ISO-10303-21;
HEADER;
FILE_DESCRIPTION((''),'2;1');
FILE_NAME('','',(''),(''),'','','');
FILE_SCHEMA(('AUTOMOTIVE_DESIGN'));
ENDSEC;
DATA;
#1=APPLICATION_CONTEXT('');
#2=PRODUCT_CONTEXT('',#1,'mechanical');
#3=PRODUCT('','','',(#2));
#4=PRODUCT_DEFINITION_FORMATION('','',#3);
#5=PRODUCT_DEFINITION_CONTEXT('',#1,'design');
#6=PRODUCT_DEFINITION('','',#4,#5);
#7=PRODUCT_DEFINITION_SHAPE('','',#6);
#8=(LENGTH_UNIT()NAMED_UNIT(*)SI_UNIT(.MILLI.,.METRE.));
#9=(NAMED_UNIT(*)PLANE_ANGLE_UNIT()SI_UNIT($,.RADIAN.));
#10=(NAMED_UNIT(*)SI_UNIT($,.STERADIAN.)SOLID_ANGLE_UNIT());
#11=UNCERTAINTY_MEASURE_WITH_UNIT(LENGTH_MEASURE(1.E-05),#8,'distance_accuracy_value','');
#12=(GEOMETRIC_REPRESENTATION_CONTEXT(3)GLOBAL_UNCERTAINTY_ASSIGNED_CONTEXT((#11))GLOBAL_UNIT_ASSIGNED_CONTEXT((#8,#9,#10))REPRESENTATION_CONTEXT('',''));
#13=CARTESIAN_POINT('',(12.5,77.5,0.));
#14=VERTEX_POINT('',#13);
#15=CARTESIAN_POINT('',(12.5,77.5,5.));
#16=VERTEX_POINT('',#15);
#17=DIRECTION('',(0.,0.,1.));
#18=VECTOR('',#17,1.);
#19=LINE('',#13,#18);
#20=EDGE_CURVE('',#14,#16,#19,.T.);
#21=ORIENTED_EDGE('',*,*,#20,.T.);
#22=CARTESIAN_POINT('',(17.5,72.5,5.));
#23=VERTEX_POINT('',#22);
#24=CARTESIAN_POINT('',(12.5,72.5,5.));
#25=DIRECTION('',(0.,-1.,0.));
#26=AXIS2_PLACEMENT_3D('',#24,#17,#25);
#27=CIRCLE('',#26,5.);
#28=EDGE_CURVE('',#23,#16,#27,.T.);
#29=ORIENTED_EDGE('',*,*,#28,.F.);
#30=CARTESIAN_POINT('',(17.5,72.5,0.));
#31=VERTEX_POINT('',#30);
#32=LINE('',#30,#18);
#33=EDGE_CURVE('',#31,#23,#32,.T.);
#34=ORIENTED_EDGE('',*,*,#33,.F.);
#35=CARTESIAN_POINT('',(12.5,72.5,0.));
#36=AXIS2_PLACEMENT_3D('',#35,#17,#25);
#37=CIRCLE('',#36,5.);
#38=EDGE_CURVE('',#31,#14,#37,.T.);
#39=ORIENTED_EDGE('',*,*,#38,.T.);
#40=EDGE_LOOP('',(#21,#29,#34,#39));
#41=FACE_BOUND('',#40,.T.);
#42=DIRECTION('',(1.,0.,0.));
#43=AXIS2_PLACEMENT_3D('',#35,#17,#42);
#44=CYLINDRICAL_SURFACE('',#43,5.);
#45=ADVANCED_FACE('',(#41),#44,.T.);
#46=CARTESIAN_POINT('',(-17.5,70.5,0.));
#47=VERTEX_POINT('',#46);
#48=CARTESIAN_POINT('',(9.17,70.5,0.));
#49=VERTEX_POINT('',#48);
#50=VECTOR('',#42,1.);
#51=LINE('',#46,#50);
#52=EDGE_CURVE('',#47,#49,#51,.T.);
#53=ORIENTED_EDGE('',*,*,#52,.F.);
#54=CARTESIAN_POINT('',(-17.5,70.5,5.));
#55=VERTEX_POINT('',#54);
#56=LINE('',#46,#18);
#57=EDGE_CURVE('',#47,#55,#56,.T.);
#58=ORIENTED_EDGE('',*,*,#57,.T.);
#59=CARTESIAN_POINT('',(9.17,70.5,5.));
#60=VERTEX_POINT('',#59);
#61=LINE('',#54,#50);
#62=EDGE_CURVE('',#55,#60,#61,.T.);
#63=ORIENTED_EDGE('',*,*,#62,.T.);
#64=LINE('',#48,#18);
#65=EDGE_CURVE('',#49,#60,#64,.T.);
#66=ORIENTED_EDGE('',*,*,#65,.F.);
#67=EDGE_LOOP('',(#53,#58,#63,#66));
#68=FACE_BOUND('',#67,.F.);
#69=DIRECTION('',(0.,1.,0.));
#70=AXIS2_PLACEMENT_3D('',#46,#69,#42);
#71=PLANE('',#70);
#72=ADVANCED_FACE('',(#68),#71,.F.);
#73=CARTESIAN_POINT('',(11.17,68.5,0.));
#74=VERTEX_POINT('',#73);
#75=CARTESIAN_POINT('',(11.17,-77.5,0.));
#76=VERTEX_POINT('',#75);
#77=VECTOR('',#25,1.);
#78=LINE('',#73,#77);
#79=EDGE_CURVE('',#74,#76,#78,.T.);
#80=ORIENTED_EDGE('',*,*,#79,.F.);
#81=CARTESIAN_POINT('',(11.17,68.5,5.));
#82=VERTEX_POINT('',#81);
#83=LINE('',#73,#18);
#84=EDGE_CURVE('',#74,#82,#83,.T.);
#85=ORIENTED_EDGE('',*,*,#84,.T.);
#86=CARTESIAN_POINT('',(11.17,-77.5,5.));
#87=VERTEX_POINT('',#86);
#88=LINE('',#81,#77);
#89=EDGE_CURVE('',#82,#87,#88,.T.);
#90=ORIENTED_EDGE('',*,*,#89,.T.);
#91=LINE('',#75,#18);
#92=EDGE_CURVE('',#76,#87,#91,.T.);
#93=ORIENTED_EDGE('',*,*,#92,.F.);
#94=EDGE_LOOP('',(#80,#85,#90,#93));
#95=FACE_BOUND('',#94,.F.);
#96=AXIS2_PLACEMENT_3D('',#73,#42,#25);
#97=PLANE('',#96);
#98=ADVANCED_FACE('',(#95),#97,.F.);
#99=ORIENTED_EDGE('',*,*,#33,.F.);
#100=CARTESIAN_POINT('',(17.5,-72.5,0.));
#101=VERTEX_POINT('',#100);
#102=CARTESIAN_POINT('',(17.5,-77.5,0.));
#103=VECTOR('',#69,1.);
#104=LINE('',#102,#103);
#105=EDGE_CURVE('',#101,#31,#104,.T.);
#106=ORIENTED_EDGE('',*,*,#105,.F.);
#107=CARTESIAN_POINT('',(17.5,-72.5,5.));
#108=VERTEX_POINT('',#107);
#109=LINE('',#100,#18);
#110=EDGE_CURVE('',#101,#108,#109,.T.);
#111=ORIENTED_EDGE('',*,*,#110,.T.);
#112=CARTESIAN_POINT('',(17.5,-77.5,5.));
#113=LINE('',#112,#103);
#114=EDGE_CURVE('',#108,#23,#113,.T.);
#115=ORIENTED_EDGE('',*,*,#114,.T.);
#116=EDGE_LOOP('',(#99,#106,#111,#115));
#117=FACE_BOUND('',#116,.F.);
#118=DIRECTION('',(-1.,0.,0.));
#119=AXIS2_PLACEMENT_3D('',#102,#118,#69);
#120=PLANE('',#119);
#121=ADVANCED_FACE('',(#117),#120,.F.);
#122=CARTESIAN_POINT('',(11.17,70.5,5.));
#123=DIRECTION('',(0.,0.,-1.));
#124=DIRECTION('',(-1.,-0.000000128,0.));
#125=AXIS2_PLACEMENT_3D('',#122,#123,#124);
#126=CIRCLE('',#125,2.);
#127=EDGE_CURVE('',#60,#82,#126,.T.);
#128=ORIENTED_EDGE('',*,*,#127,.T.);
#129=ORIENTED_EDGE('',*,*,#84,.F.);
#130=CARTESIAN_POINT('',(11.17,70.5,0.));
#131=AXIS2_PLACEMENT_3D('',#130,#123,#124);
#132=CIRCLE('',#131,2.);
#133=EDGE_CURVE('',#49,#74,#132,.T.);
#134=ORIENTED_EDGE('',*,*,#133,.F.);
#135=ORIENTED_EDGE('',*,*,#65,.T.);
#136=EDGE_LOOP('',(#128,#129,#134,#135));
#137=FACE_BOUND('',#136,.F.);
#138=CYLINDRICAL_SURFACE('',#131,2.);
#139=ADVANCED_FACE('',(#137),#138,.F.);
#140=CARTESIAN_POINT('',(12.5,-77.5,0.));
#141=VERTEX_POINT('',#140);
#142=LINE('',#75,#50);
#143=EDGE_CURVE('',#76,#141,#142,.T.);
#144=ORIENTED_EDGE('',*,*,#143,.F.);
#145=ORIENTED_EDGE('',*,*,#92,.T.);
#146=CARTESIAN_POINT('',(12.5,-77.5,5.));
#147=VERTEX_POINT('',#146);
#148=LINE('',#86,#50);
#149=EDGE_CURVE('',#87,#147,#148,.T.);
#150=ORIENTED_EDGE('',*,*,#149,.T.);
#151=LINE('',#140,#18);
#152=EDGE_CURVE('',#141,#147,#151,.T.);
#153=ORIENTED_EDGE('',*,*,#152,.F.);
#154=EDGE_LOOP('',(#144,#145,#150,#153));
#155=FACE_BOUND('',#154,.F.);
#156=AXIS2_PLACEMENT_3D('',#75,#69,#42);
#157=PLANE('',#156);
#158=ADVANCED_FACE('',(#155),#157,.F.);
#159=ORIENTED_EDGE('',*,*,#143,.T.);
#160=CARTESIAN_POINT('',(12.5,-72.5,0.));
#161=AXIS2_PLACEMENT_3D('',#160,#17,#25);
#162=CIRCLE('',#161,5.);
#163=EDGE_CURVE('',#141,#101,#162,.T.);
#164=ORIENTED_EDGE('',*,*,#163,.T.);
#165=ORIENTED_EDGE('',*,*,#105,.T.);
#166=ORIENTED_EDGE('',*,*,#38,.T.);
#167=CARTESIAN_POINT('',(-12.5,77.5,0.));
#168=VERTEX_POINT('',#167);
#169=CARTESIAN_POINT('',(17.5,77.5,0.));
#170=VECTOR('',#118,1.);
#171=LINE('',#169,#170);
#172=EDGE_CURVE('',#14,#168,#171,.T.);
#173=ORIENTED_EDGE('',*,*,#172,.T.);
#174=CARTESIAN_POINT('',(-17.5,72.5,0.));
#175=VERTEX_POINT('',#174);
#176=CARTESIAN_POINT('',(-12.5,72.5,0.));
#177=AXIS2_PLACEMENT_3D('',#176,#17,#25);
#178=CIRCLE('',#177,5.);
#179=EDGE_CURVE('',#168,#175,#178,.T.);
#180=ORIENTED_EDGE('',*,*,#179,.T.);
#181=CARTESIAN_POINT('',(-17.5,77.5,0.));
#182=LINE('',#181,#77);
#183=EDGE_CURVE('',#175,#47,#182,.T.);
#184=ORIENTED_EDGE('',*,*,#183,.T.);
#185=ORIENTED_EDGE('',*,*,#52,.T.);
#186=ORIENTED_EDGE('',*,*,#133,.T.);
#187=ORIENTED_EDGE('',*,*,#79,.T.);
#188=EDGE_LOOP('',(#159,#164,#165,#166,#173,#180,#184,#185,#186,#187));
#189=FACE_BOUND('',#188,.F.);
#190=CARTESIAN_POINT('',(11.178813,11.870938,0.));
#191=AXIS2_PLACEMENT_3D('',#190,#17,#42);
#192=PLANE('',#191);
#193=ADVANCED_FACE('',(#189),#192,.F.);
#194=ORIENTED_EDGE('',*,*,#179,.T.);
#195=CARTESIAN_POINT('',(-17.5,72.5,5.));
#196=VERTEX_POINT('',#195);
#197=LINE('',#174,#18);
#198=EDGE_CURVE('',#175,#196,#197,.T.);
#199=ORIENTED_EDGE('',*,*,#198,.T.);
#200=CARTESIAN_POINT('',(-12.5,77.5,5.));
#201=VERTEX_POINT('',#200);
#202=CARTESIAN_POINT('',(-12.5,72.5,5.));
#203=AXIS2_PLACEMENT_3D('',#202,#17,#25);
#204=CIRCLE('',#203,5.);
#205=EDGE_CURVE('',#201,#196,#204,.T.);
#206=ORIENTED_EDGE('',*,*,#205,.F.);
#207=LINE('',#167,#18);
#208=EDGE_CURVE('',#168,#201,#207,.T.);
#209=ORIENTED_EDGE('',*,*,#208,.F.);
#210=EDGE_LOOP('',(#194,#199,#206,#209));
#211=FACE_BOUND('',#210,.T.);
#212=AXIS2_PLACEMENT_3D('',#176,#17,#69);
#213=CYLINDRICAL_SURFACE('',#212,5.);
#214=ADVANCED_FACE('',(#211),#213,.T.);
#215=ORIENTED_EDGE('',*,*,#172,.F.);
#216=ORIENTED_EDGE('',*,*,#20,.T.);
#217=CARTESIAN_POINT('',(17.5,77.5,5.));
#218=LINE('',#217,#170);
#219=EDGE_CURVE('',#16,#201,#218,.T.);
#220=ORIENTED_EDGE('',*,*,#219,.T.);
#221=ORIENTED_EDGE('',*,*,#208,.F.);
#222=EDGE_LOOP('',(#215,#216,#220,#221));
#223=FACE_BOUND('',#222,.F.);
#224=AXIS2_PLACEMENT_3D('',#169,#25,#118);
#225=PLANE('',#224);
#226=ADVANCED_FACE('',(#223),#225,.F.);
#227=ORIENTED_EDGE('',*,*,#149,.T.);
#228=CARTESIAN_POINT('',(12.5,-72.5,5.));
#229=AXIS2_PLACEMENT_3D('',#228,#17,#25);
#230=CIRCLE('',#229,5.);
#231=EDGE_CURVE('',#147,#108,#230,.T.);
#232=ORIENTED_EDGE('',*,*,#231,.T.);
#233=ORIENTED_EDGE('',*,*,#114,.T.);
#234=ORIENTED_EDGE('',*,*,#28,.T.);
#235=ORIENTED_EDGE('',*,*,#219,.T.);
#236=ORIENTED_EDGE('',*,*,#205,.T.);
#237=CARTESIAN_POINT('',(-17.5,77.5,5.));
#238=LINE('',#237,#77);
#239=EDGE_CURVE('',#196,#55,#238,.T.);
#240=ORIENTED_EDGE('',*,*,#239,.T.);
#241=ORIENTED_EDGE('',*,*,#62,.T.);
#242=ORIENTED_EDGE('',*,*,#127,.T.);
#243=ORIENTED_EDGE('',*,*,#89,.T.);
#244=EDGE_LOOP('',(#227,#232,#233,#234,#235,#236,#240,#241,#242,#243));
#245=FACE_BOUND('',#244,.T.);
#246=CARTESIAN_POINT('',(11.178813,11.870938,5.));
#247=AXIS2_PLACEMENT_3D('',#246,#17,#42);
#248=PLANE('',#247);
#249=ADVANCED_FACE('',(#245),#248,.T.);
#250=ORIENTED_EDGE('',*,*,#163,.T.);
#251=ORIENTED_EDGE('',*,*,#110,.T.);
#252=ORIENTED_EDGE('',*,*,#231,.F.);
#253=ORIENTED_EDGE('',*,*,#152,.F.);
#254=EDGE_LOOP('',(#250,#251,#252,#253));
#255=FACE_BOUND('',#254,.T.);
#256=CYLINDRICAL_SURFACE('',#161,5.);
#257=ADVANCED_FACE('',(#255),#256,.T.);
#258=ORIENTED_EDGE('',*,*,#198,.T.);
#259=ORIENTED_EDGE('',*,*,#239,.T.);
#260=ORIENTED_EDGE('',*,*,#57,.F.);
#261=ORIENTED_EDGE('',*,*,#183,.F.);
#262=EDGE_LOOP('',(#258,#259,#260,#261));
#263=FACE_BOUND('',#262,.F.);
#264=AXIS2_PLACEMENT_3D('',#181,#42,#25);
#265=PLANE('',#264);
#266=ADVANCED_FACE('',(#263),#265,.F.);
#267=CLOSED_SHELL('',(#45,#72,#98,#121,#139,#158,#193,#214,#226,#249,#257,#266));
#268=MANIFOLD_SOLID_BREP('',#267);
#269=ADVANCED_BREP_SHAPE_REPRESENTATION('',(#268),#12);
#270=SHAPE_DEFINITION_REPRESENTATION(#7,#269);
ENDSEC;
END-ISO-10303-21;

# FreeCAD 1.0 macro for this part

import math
import FreeCAD as App
import Part
import Sketcher

V = App.Vector
Q = App.Units.Quantity


def edges_at(feature, points):
    """Names of the edges that pass closest to the given points."""
    edges = feature.Shape.Edges
    near = lambda p: min(range(len(edges)), key=lambda i: edges[i].distToShape(Part.Vertex(*p))[0])
    return sorted({f"Edge{near(p) + 1}" for p in points})

doc = App.newDocument("Part")
params = doc.addObject("Spreadsheet::Sheet", "Params")
for row, (alias, value) in enumerate([
    ("sketch1_radius", "2 mm"),
    ("sketch1_width", "35 mm"),
    ("sketch1_height", "155 mm"),
    ("sketch1_height2", "7 mm"),
    ("sketch1_width2", "6.33 mm"),
    ("pad1_length", "5 mm"),
    ("fillet_radius", "5 mm"),
], start=1):
    params.set(f"A{row}", alias)
    params.set(f"B{row}", "=" + value)
    params.setAlias(f"B{row}", alias)

body = doc.addObject("PartDesign::Body", "Body")

# Sketch on XY plane
sketch1 = body.newObject("Sketcher::SketchObject", "Sketch")
sketch1.AttachmentSupport = (doc.getObject("XY_Plane"), [""])
sketch1.MapMode = "FlatFace"
sketch1.addGeometry([
    Part.LineSegment(V(11.2, -77.5, 0), V(17.5, -77.5, 0)),  # 0
    Part.LineSegment(V(17.5, -77.5, 0), V(17.5, 77.5, 0)),  # 1
    Part.LineSegment(V(17.5, 77.5, 0), V(-17.5, 77.5, 0)),  # 2
    Part.LineSegment(V(-17.5, 77.5, 0), V(-17.5, 70.5, 0)),  # 3
    Part.LineSegment(V(-17.5, 70.5, 0), V(9.2, 70.5, 0)),  # 4
    Part.ArcOfCircle(Part.Circle(V(11.2, 70.5, 0), V(0, 0, 1), 2), math.radians(-90), math.radians(180)),  # 5
    Part.LineSegment(V(11.2, 68.5, 0), V(11.2, -77.5, 0)),  # 6
], False)
sketch1.addConstraint([
    Sketcher.Constraint("Coincident", 0, 2, 1, 1),
    Sketcher.Constraint("Coincident", 1, 2, 2, 1),
    Sketcher.Constraint("Coincident", 2, 2, 3, 1),
    Sketcher.Constraint("Coincident", 3, 2, 4, 1),
    Sketcher.Constraint("Coincident", 4, 2, 5, 2),
    Sketcher.Constraint("Coincident", 5, 1, 6, 1),
    Sketcher.Constraint("Coincident", 6, 2, 0, 1),
    Sketcher.Constraint("Horizontal", 0),
    Sketcher.Constraint("Vertical", 1),
    Sketcher.Constraint("Horizontal", 2),
    Sketcher.Constraint("Vertical", 3),
    Sketcher.Constraint("Horizontal", 4),
    Sketcher.Constraint("Vertical", 6),
    Sketcher.Constraint("Symmetric", 0, 2, 2, 2, -1, 1),
    Sketcher.Constraint("Horizontal", 5, 3, 3, 2),
    Sketcher.Constraint("Radius", 5, Q("2 mm")),
    Sketcher.Constraint("DistanceX", 2, 2, 2, 1, Q("35 mm")),
    Sketcher.Constraint("DistanceY", 1, 1, 1, 2, Q("155 mm")),
    Sketcher.Constraint("DistanceY", 3, 2, 3, 1, Q("7 mm")),
    Sketcher.Constraint("DistanceX", 4, 2, 5, 1, Q("2 mm")),
    Sketcher.Constraint("DistanceX", 0, 1, 0, 2, Q("6.33 mm")),
])
sketch1.setExpression("Constraints[15]", "Params.sketch1_radius")
sketch1.setExpression("Constraints[16]", "Params.sketch1_width")
sketch1.setExpression("Constraints[17]", "Params.sketch1_height")
sketch1.setExpression("Constraints[18]", "Params.sketch1_height2")
sketch1.setExpression("Constraints[20]", "Params.sketch1_width2")
pad1 = body.newObject("PartDesign::Pad", "Pad")
pad1.Profile = sketch1
pad1.setExpression("Length", "Params.pad1_length")
doc.recompute()

fillet = body.newObject("PartDesign::Fillet", "Fillet")
fillet.Base = (pad1, edges_at(pad1, [(17.5, 77.5, 2.5), (-17.5, 77.5, 2.5), (17.5, -77.5, 2.5)]))
fillet.setExpression("Radius", "Params.fillet_radius")

doc.recompute()
